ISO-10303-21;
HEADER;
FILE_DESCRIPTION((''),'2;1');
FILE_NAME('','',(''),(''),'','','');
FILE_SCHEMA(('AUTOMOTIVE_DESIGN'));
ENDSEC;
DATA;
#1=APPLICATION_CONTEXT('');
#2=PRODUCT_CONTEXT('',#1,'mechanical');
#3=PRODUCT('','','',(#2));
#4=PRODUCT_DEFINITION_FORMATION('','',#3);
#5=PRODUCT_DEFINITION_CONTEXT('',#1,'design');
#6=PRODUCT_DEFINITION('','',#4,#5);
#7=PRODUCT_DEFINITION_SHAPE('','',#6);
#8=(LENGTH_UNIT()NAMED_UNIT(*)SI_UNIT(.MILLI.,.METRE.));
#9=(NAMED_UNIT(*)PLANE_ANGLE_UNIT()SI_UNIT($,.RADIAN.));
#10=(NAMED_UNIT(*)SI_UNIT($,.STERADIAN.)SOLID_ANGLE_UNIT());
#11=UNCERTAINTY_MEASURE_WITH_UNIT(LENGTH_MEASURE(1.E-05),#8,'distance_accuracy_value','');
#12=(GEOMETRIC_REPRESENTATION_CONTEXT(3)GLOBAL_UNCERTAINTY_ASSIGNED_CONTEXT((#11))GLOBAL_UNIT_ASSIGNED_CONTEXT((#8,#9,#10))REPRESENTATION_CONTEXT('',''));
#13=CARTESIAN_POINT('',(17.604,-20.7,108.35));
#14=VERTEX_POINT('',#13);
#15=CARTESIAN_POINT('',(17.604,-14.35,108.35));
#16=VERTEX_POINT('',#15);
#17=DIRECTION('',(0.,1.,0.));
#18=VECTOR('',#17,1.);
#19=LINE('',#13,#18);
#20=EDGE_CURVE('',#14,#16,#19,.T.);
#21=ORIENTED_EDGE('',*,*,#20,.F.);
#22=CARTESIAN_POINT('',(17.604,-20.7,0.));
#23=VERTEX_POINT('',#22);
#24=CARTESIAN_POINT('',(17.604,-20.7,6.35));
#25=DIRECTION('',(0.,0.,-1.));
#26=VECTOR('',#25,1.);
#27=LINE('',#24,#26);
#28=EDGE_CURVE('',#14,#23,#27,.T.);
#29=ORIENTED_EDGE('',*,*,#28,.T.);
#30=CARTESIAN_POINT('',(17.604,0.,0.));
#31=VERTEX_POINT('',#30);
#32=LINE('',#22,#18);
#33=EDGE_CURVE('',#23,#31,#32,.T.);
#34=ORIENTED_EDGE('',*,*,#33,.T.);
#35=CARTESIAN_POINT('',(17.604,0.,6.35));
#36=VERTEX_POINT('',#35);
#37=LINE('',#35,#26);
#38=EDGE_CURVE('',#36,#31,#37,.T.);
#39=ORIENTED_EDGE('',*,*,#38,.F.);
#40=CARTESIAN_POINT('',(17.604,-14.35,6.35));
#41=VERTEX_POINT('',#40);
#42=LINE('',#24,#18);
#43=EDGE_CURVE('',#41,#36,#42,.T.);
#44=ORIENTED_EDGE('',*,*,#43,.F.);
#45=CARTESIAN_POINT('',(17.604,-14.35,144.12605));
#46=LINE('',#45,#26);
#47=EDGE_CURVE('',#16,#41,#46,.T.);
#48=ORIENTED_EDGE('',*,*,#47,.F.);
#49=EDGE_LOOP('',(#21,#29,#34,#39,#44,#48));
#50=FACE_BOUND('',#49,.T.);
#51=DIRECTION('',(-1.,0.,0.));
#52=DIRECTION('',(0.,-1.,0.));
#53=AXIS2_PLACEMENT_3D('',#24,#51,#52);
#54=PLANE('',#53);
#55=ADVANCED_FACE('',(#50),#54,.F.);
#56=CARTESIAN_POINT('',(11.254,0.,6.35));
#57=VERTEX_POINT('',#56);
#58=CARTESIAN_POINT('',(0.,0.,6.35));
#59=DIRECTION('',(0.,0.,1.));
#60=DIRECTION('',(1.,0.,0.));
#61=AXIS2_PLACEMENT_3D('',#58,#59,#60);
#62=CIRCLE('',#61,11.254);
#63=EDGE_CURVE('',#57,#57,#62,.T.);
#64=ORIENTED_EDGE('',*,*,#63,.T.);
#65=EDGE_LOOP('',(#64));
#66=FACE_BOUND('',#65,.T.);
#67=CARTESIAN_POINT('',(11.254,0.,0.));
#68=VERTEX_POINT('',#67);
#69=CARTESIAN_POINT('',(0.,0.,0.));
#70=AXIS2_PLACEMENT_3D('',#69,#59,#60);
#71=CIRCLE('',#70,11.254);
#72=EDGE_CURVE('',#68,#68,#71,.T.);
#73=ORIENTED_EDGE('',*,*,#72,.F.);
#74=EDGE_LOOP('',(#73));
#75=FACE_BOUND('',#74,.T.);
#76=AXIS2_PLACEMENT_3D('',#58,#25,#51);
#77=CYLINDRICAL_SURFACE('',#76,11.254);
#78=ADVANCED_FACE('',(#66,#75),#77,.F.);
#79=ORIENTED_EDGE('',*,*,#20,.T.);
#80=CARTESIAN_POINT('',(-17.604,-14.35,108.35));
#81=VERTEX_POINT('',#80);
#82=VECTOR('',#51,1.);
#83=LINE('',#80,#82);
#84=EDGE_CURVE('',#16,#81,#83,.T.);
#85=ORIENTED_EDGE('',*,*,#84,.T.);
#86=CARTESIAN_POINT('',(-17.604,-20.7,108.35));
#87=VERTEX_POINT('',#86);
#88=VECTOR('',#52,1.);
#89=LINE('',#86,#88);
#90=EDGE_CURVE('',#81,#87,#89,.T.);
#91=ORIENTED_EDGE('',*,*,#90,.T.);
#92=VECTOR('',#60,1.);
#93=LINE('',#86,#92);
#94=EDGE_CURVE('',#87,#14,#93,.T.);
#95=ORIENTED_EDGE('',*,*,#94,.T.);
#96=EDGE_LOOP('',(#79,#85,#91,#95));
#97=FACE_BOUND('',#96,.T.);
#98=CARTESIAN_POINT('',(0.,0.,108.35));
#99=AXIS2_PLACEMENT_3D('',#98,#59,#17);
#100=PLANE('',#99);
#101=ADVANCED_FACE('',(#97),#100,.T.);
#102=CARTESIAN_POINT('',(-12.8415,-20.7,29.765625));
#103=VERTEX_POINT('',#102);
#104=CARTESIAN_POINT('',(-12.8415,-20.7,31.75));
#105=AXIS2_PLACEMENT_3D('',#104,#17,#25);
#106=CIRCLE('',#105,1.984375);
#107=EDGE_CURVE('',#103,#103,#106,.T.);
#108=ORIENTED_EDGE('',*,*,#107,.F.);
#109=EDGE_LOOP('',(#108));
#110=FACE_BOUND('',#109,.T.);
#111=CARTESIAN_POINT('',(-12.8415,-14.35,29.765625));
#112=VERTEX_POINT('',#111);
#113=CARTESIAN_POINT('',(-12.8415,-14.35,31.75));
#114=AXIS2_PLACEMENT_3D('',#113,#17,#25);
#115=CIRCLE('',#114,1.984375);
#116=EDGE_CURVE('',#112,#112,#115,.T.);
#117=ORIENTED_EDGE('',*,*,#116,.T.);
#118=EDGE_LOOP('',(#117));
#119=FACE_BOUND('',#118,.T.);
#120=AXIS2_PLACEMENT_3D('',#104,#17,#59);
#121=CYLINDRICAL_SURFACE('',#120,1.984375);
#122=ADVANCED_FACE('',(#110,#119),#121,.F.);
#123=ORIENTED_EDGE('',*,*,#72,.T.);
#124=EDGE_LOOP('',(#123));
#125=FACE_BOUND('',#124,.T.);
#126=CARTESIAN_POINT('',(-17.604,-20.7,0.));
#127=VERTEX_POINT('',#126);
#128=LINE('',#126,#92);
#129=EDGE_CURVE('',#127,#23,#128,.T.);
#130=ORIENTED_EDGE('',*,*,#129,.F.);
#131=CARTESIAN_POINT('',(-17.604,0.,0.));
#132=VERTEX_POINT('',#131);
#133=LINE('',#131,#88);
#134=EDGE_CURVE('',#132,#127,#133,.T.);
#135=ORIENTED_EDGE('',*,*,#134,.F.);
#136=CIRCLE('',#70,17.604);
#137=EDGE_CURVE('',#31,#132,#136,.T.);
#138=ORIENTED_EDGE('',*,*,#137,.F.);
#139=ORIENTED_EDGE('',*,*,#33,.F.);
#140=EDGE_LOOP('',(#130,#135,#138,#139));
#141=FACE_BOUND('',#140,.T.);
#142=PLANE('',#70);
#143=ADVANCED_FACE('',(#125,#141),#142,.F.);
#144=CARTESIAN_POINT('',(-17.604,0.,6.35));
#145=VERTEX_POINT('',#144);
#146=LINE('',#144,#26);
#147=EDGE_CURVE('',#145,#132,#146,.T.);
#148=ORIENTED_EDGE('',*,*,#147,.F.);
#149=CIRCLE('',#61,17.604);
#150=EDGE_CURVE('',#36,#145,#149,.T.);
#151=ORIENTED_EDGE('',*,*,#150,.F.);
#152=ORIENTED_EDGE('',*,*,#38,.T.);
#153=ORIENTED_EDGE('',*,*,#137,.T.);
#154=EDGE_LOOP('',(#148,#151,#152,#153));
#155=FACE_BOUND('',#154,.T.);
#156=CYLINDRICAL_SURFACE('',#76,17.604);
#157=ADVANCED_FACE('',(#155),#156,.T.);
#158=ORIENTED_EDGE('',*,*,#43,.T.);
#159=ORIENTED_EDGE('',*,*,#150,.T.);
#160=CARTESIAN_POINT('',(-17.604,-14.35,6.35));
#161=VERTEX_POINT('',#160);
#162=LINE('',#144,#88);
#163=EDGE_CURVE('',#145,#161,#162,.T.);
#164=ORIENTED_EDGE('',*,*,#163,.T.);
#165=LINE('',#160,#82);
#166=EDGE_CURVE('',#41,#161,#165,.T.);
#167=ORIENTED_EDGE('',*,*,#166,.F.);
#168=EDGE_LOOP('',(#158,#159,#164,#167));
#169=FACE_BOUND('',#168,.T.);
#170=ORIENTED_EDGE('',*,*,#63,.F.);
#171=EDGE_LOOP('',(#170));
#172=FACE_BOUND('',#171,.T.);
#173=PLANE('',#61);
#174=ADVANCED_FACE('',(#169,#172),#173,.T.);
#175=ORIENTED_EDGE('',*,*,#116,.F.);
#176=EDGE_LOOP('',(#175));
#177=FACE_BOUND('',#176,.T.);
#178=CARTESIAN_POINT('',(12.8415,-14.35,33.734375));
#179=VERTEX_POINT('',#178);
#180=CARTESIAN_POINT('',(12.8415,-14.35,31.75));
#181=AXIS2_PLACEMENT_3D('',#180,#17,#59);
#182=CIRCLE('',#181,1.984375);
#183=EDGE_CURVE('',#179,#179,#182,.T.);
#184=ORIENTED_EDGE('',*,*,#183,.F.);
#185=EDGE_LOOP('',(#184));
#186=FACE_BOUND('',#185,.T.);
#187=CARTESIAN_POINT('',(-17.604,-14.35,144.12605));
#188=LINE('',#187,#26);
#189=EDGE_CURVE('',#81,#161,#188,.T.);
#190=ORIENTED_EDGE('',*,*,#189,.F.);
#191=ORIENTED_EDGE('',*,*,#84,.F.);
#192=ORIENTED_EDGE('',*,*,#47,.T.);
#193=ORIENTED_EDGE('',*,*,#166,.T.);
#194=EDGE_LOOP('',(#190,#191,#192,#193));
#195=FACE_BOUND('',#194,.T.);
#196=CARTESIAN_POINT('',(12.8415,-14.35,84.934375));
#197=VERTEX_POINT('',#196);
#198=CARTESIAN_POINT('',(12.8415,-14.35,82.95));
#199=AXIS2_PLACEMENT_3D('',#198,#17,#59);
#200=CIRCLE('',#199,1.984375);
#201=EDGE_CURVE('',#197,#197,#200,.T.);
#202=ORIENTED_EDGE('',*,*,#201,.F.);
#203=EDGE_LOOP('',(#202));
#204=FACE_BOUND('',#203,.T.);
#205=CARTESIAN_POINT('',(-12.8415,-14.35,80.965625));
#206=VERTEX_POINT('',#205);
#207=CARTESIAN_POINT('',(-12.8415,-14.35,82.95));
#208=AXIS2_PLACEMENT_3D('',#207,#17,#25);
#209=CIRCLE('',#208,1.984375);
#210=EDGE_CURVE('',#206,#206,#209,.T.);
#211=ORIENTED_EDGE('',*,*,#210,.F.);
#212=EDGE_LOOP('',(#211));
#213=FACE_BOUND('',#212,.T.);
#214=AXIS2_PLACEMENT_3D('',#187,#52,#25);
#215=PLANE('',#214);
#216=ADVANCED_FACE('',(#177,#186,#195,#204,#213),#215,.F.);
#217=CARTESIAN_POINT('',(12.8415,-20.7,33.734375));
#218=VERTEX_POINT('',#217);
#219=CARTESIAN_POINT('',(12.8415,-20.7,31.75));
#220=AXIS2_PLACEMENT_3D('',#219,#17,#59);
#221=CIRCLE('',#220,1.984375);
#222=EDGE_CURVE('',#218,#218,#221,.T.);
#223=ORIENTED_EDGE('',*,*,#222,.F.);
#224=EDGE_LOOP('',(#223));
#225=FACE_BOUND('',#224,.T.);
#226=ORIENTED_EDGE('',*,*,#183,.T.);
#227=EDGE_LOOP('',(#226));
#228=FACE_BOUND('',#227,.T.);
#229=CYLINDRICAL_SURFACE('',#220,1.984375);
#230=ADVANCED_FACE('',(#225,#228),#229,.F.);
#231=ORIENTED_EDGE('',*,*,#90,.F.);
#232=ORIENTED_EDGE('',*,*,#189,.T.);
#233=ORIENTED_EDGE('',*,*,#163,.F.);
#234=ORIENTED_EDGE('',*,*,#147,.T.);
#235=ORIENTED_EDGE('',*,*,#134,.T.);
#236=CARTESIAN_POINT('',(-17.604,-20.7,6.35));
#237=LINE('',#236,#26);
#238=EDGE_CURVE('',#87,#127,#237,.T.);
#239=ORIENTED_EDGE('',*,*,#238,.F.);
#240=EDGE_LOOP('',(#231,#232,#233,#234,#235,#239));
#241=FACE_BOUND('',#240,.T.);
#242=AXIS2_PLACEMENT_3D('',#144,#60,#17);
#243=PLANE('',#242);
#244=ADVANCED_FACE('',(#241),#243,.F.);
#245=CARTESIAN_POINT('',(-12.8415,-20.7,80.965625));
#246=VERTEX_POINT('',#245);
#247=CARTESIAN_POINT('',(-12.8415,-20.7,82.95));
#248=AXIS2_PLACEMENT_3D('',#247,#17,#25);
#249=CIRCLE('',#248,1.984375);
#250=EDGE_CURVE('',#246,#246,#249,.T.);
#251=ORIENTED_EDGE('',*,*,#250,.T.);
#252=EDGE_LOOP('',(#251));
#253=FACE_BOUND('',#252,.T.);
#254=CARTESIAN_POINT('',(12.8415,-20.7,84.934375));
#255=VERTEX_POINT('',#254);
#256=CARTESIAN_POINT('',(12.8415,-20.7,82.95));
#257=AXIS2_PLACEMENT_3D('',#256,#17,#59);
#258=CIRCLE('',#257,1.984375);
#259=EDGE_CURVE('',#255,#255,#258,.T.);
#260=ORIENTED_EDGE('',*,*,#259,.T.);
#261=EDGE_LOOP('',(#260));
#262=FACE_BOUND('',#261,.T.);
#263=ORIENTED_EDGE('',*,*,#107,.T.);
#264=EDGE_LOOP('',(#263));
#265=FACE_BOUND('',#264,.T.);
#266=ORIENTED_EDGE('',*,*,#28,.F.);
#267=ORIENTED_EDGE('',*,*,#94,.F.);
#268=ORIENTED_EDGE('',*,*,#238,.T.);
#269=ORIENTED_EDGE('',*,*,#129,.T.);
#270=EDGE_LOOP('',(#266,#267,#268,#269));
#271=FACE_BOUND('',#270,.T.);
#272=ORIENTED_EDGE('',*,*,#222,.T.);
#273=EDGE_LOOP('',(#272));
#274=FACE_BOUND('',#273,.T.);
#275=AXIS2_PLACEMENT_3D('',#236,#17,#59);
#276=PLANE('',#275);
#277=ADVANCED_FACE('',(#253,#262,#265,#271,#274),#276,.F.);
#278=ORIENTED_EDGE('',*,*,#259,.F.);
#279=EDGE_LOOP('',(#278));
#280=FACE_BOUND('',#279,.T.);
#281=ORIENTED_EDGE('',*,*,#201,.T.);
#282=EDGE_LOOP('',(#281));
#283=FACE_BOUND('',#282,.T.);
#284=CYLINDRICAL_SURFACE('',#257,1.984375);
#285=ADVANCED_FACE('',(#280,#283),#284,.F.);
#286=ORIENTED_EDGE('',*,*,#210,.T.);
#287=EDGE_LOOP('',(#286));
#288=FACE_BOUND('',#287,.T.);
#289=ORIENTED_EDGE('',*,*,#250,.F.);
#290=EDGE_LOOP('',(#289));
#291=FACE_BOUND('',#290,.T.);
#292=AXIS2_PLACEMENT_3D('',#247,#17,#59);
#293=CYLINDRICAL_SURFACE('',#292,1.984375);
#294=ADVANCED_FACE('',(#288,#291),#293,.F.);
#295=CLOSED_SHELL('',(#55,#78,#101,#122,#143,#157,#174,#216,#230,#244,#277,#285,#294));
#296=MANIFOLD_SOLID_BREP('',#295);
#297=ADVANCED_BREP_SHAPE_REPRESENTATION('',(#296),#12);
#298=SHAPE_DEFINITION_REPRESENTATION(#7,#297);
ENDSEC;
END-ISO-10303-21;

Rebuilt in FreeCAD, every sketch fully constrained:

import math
import FreeCAD as App
import Part
import Sketcher
Q = App.Units.Quantity


def add_polygon(sketch, points):
    """Adds a closed chain of lines whose ends are joined by coincident constraints."""
    first, n = sketch.GeometryCount, len(points)
    for a, b in zip(points, points[1:] + points[:1]):
        sketch.addGeometry(Part.LineSegment(App.Vector(*a, 0), App.Vector(*b, 0)), False)
    for i in range(n):
        sketch.addConstraint(Sketcher.Constraint("Coincident", first + i, 2, first + (i + 1) % n, 1))

doc = App.newDocument("Part")
body = doc.addObject("PartDesign::Body", "Body")

# Sketch on XY plane
sketch1 = doc.addObject("Sketcher::SketchObject", "Sketch")
body.addObject(sketch1)
sketch1.AttachmentSupport = (doc.XY_Plane, [""])
sketch1.MapMode = "FlatFace"
sketch1.addGeometry([
    Part.LineSegment(App.Vector(-17.604, 0, 0), App.Vector(-17.604, -20.7, 0)),  # 0
    Part.LineSegment(App.Vector(-17.604, -20.7, 0), App.Vector(17.604, -20.7, 0)),  # 1
    Part.LineSegment(App.Vector(17.604, -20.7, 0), App.Vector(17.604, 0, 0)),  # 2
    Part.ArcOfCircle(Part.Circle(App.Vector(0, 0, 0), App.Vector(0, 0, 1), 17.604), math.radians(0), math.radians(180)),  # 3
    Part.Circle(App.Vector(0, 0, 0), App.Vector(0, 0, 1), 11.254),  # 4
], False)
sketch1.addConstraint([
    Sketcher.Constraint("Coincident", 0, 2, 1, 1),
    Sketcher.Constraint("Coincident", 1, 2, 2, 1),
    Sketcher.Constraint("Tangent", 2, 2, 3, 1),
    Sketcher.Constraint("Tangent", 3, 2, 0, 1),
    Sketcher.Constraint("Vertical", 0),
    Sketcher.Constraint("Horizontal", 1),
    Sketcher.Constraint("Vertical", 2),
    Sketcher.Constraint("Coincident", 3, 3, -1, 1),
    Sketcher.Constraint("Coincident", 4, 3, -1, 1),
    Sketcher.Constraint("Diameter", 4, Q("22.508 mm")),
    Sketcher.Constraint("DistanceY", 0, 2, 0, 1, Q("20.7 mm")),
    Sketcher.Constraint("Radius", 3, Q("17.604 mm")),
])
pad1 = doc.addObject("PartDesign::Pad", "Pad")
body.addObject(pad1)
pad1.Profile = sketch1
pad1.Length = 6.35

# Sketch on XY plane
sketch2 = doc.addObject("Sketcher::SketchObject", "Sketch001")
body.addObject(sketch2)
sketch2.AttachmentSupport = (doc.XY_Plane, [""])
sketch2.MapMode = "FlatFace"
sketch2.AttachmentOffset = App.Placement(App.Vector(0, 0, 6.35), App.Rotation())
add_polygon(sketch2, [(-17.604, -14.35), (-17.604, -20.7), (17.604, -20.7), (17.604, -14.35)])  # lines 0-3
sketch2.addConstraint([
    Sketcher.Constraint("Vertical", 0),
    Sketcher.Constraint("Horizontal", 1),
    Sketcher.Constraint("Vertical", 2),
    Sketcher.Constraint("Horizontal", 3),
    Sketcher.Constraint("DistanceY", 0, 2, 0, 1, Q("6.35 mm")),
    Sketcher.Constraint("DistanceY", 0, 2, -1, 1, Q("20.7 mm")),
    Sketcher.Constraint("DistanceX", 1, 1, 1, 2, Q("35.208 mm")),
    Sketcher.Constraint("DistanceX", 0, 2, -1, 1, Q("17.604 mm")),
])
pad2 = doc.addObject("PartDesign::Pad", "Pad001")
body.addObject(pad2)
pad2.Profile = sketch2
pad2.Length = 102

# Sketch on XZ plane
sketch3 = doc.addObject("Sketcher::SketchObject", "Sketch002")
body.addObject(sketch3)
sketch3.AttachmentSupport = (doc.XZ_Plane, [""])
sketch3.MapMode = "FlatFace"
sketch3.AttachmentOffset = App.Placement(App.Vector(0, 0, 14.35), App.Rotation())
sketch3.addGeometry([
    Part.Circle(App.Vector(12.8415, 31.75, 0), App.Vector(0, 0, 1), 1.984375),
    Part.Circle(App.Vector(12.8415, 82.95, 0), App.Vector(0, 0, 1), 1.984375),
    Part.Circle(App.Vector(-12.8415, 82.95, 0), App.Vector(0, 0, 1), 1.984375),
    Part.Circle(App.Vector(-12.8415, 31.75, 0), App.Vector(0, 0, 1), 1.984375),
], False)
sketch3.addConstraint([
    Sketcher.Constraint("Equal", 0, 1),
    Sketcher.Constraint("Equal", 1, 2),
    Sketcher.Constraint("Equal", 2, 3),
    Sketcher.Constraint("Symmetric", 1, 3, 2, 3, -2),
    Sketcher.Constraint("Symmetric", 0, 3, 3, 3, -2),
    Sketcher.Constraint("Vertical", 0, 3, 1, 3),
    Sketcher.Constraint("DistanceY", 0, 3, 1, 3, Q("51.2 mm")),
    Sketcher.Constraint("Diameter", 0, Q("3.96875 mm")),
    Sketcher.Constraint("DistanceY", -1, 1, 0, 3, Q("31.75 mm")),
    Sketcher.Constraint("DistanceX", 2, 3, 1, 3, Q("25.683 mm")),
])
pocket1 = doc.addObject("PartDesign::Pocket", "Pocket")
body.addObject(pocket1)
pocket1.Profile = sketch3
pocket1.Type = "ThroughAll"
pocket1.Reversed = True

doc.recompute()
